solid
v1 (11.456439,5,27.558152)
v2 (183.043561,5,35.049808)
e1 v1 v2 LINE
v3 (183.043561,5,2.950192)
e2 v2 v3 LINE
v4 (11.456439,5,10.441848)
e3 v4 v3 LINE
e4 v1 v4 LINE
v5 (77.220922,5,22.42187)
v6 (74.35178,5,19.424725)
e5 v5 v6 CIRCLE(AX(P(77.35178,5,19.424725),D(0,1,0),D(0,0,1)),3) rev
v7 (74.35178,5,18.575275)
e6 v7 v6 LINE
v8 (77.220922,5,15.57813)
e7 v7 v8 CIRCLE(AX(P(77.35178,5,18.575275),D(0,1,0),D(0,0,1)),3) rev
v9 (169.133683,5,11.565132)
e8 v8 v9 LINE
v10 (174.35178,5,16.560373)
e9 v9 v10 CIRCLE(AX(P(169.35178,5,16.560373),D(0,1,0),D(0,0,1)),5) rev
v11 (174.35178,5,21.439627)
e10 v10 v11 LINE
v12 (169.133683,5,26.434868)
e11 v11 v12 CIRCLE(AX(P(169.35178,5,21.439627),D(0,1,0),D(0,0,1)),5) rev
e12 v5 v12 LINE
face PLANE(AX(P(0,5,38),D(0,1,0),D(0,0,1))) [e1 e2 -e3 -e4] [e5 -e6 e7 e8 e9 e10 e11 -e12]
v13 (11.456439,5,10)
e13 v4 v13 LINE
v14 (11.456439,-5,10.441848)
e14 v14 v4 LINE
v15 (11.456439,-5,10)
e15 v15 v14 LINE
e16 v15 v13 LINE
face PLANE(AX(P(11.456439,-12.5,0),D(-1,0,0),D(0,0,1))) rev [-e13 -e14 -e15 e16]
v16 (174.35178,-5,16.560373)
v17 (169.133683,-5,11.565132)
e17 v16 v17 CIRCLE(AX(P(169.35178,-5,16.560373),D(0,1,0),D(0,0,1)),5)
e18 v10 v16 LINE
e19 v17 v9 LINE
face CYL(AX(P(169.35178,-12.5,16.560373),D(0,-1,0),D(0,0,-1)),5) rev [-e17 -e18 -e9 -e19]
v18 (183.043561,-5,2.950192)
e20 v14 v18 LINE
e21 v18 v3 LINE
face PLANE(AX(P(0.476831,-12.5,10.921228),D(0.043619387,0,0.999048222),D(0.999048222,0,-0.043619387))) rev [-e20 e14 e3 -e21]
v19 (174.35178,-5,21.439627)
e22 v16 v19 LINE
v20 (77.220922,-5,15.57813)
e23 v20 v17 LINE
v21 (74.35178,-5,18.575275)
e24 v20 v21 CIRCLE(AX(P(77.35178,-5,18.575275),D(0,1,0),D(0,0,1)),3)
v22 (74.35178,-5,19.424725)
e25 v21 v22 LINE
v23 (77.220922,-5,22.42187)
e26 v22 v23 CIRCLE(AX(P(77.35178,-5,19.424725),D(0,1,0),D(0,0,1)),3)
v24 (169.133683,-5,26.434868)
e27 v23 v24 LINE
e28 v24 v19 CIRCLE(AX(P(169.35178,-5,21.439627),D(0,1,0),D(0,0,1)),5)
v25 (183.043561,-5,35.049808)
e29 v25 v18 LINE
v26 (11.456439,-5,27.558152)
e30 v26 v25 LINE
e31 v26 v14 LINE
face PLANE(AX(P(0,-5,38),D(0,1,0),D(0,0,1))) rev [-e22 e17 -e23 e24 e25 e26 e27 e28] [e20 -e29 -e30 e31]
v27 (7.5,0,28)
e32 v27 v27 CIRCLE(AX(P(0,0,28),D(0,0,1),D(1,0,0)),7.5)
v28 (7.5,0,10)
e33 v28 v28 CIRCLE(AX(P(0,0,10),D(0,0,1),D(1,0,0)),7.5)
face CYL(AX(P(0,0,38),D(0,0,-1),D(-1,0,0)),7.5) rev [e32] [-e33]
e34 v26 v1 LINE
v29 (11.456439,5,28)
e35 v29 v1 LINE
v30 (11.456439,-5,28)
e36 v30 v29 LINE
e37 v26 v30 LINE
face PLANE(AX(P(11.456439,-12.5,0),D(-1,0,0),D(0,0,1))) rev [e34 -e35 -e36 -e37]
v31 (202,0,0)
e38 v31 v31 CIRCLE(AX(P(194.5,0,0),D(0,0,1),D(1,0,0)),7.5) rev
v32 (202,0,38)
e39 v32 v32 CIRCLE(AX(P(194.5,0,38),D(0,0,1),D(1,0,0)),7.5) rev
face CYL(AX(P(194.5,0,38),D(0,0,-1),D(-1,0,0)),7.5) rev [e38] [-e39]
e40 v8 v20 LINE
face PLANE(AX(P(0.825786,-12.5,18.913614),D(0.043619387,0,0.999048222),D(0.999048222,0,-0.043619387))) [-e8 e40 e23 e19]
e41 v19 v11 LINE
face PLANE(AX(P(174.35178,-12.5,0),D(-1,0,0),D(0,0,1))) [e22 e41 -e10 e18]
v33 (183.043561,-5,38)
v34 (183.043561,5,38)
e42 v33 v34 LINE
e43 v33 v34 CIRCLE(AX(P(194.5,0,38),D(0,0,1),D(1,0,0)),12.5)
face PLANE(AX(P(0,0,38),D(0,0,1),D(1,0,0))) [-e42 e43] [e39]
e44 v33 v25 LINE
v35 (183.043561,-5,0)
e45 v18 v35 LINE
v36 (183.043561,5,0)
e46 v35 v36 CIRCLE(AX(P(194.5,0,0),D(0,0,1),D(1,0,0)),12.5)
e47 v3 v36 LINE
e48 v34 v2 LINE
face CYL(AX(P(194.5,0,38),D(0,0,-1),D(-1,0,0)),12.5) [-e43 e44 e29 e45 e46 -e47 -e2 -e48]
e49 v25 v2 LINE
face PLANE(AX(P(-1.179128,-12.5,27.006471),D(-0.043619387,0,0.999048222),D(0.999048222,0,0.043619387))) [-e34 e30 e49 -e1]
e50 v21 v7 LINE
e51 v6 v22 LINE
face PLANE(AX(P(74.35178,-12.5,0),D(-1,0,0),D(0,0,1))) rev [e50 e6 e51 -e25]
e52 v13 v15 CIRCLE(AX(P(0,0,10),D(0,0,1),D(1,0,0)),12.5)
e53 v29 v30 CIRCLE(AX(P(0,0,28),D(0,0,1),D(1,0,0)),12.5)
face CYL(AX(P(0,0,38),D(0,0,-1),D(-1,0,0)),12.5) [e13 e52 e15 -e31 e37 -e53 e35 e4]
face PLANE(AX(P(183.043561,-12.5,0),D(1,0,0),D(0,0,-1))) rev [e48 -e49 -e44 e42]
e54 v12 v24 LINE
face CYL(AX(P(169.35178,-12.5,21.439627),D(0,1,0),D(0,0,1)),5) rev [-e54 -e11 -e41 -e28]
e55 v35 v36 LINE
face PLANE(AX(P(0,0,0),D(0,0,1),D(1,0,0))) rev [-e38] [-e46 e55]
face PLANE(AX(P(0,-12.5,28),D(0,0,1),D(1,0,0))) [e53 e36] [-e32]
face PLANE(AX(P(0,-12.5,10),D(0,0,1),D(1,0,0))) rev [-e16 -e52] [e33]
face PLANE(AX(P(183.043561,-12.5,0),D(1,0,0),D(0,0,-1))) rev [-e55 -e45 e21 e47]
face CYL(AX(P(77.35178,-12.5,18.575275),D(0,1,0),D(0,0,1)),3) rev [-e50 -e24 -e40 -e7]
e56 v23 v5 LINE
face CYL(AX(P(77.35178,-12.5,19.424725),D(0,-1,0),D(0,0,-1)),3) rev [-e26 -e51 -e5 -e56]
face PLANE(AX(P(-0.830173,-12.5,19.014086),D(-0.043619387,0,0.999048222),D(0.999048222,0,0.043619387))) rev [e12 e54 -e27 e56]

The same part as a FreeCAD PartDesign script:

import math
import FreeCAD as App
import Part
import Sketcher

V = App.Vector
Q = App.Units.Quantity


def edges_at(feature, points):
    """Names of the edges that pass closest to the given points."""
    edges = feature.Shape.Edges
    near = lambda p: min(range(len(edges)), key=lambda i: edges[i].distToShape(Part.Vertex(*p))[0])
    return sorted({f"Edge{near(p) + 1}" for p in points})


def add_polygon(sketch, points):
    """Adds a closed chain of lines whose ends are joined by coincident constraints."""
    first, n = sketch.GeometryCount, len(points)
    for a, b in zip(points, points[1:] + points[:1]):
        sketch.addGeometry(Part.LineSegment(App.Vector(*a, 0), App.Vector(*b, 0)), False)
    for i in range(n):
        sketch.addConstraint(Sketcher.Constraint("Coincident", first + i, 2, first + (i + 1) % n, 1))

doc = App.newDocument("Part")
body = doc.addObject("PartDesign::Body", "Body")

# Sketch on XY plane
sketch1 = body.newObject("Sketcher::SketchObject", "Sketch")
sketch1.AttachmentSupport = (doc.getObject("XY_Plane"), [""])
sketch1.MapMode = "FlatFace"
sketch1.addGeometry([
    Part.LineSegment(V(183, 5, 0), V(11, 5, 0)),  # 0
    Part.ArcOfCircle(Part.Circle(V(0, 0, 0), V(0, 0, 1), 12), math.radians(24), math.radians(336)),  # 1
    Part.LineSegment(V(11, -5, 0), V(183, -5, 0)),  # 2
    Part.ArcOfCircle(Part.Circle(V(194, 0, 0), V(0, 0, 1), 12), math.radians(-156), math.radians(156)),  # 3
    Part.Circle(V(0, 0, 0), V(0, 0, 1), 8),  # 4
    Part.Circle(V(194, 0, 0), V(0, 0, 1), 8),  # 5
], False)
sketch1.addConstraint([
    Sketcher.Constraint("Coincident", 0, 2, 1, 1),
    Sketcher.Constraint("Coincident", 1, 2, 2, 1),
    Sketcher.Constraint("Coincident", 2, 2, 3, 1),
    Sketcher.Constraint("Coincident", 3, 2, 0, 1),
    Sketcher.Constraint("Horizontal", 0),
    Sketcher.Constraint("Horizontal", 2),
    Sketcher.Constraint("Coincident", 1, 3, -1, 1),
    Sketcher.Constraint("Coincident", 4, 3, -1, 1),
    Sketcher.Constraint("Coincident", 5, 3, 3, 3),
    Sketcher.Constraint("Equal", 1, 3),
    Sketcher.Constraint("Equal", 4, 5),
    Sketcher.Constraint("Symmetric", 2, 2, 3, 2, -1),
    Sketcher.Constraint("Diameter", 4, 15.0),
    Sketcher.Constraint("Radius", 1, 12.5),
    Sketcher.Constraint("DistanceY", -1, 1, 0, 2, 5.0),
    Sketcher.Constraint("DistanceX", -1, 1, 3, 3, 194.5),
])
pad1 = body.newObject("PartDesign::Pad", "Pad")
pad1.Profile = sketch1
pad1.Length = 38

# Sketch on XZ plane
sketch2 = body.newObject("Sketcher::SketchObject", "Sketch001")
sketch2.AttachmentSupport = (doc.getObject("XZ_Plane"), [""])
sketch2.MapMode = "FlatFace"
sketch2.AttachmentOffset = App.Placement(V(0, 0, -5), App.Rotation())
add_polygon(sketch2, [(11.46, 27.56), (11.46, 28), (-12.5, 28), (-12.5, 38), (183.04, 38), (183.04, 35.05)])  # lines 0-5
add_polygon(sketch2, [(-12.5, 0), (-12.5, 10), (11.46, 10), (11.46, 10.44), (183.04, 2.95), (183.04, 0)])  # lines 6-11
add_polygon(sketch2, [(74.35, 15.7), (74.35, 22.3), (174.35, 26.66), (174.35, 11.34)])  # lines 12-15
sketch2.addConstraint([
    Sketcher.Constraint("Vertical", 0),
    Sketcher.Constraint("Horizontal", 1),
    Sketcher.Constraint("Vertical", 2),
    Sketcher.Constraint("Horizontal", 3),
    Sketcher.Constraint("Vertical", 4),
    Sketcher.Constraint("Vertical", 6),
    Sketcher.Constraint("Horizontal", 7),
    Sketcher.Constraint("Vertical", 8),
    Sketcher.Constraint("Vertical", 10),
    Sketcher.Constraint("Horizontal", 11),
    Sketcher.Constraint("Vertical", 12),
    Sketcher.Constraint("Vertical", 14),
    Sketcher.Constraint("PointOnObject", 10, 2, -1),
    Sketcher.Constraint("Parallel", 5, 13),
    Sketcher.Constraint("Parallel", 9, 15),
    Sketcher.Constraint("Vertical", 2, 2, 6, 2),
    Sketcher.Constraint("Vertical", 5, 2, 7, 2),
    Sketcher.Constraint("Vertical", 4, 2, 9, 2),
    Sketcher.Constraint("Equal", 2, 6),
    Sketcher.Constraint("Equal", 0, 8),
    Sketcher.Constraint("Equal", 4, 10),
    Sketcher.Constraint("DistanceY", 2, 1, 2, 2, 10.0),
    Sketcher.Constraint("DistanceY", -1, 1, 0, 2, 28.0),
    Sketcher.Constraint("Angle", 5, Q("-177.5 deg")),
    Sketcher.Constraint("DistanceX", 12, 2, 13, 2, 100.0),
    Sketcher.Constraint("DistanceX", 1, 2, -1, 1, 12.5),
    Sketcher.Constraint("DistanceY", 12, 1, 12, 2, 6.593201),
    Sketcher.Constraint("DistanceX", 1, 2, 1, 1, 23.956439),
    Sketcher.Constraint("DistanceX", 3, 1, 3, 2, 195.543561),
    Sketcher.Constraint("DistanceY", -1, 1, 12, 2, 22.2966),
    Sketcher.Constraint("DistanceY", 0, 1, 0, 2, 0.441848),
    Sketcher.Constraint("DistanceX", -1, 1, 12, 2, 74.35178),
])
pocket1 = body.newObject("PartDesign::Pocket", "Pocket")
pocket1.Profile = sketch2
pocket1.Type = "ThroughAll"
pocket1.Midplane = True
doc.recompute()

fillet = body.newObject("PartDesign::Fillet", "Fillet")
fillet.Base = (pocket1, edges_at(pocket1, [(74.352, 0, 22.297), (74.352, 0, 15.703)]))
fillet.Radius = 3
doc.recompute()

fillet2 = body.newObject("PartDesign::Fillet", "Fillet001")
fillet2.Base = (fillet, edges_at(fillet, [(174.352, 0, 11.337), (174.352, 0, 26.663)]))
fillet2.Radius = 5

doc.recompute()
